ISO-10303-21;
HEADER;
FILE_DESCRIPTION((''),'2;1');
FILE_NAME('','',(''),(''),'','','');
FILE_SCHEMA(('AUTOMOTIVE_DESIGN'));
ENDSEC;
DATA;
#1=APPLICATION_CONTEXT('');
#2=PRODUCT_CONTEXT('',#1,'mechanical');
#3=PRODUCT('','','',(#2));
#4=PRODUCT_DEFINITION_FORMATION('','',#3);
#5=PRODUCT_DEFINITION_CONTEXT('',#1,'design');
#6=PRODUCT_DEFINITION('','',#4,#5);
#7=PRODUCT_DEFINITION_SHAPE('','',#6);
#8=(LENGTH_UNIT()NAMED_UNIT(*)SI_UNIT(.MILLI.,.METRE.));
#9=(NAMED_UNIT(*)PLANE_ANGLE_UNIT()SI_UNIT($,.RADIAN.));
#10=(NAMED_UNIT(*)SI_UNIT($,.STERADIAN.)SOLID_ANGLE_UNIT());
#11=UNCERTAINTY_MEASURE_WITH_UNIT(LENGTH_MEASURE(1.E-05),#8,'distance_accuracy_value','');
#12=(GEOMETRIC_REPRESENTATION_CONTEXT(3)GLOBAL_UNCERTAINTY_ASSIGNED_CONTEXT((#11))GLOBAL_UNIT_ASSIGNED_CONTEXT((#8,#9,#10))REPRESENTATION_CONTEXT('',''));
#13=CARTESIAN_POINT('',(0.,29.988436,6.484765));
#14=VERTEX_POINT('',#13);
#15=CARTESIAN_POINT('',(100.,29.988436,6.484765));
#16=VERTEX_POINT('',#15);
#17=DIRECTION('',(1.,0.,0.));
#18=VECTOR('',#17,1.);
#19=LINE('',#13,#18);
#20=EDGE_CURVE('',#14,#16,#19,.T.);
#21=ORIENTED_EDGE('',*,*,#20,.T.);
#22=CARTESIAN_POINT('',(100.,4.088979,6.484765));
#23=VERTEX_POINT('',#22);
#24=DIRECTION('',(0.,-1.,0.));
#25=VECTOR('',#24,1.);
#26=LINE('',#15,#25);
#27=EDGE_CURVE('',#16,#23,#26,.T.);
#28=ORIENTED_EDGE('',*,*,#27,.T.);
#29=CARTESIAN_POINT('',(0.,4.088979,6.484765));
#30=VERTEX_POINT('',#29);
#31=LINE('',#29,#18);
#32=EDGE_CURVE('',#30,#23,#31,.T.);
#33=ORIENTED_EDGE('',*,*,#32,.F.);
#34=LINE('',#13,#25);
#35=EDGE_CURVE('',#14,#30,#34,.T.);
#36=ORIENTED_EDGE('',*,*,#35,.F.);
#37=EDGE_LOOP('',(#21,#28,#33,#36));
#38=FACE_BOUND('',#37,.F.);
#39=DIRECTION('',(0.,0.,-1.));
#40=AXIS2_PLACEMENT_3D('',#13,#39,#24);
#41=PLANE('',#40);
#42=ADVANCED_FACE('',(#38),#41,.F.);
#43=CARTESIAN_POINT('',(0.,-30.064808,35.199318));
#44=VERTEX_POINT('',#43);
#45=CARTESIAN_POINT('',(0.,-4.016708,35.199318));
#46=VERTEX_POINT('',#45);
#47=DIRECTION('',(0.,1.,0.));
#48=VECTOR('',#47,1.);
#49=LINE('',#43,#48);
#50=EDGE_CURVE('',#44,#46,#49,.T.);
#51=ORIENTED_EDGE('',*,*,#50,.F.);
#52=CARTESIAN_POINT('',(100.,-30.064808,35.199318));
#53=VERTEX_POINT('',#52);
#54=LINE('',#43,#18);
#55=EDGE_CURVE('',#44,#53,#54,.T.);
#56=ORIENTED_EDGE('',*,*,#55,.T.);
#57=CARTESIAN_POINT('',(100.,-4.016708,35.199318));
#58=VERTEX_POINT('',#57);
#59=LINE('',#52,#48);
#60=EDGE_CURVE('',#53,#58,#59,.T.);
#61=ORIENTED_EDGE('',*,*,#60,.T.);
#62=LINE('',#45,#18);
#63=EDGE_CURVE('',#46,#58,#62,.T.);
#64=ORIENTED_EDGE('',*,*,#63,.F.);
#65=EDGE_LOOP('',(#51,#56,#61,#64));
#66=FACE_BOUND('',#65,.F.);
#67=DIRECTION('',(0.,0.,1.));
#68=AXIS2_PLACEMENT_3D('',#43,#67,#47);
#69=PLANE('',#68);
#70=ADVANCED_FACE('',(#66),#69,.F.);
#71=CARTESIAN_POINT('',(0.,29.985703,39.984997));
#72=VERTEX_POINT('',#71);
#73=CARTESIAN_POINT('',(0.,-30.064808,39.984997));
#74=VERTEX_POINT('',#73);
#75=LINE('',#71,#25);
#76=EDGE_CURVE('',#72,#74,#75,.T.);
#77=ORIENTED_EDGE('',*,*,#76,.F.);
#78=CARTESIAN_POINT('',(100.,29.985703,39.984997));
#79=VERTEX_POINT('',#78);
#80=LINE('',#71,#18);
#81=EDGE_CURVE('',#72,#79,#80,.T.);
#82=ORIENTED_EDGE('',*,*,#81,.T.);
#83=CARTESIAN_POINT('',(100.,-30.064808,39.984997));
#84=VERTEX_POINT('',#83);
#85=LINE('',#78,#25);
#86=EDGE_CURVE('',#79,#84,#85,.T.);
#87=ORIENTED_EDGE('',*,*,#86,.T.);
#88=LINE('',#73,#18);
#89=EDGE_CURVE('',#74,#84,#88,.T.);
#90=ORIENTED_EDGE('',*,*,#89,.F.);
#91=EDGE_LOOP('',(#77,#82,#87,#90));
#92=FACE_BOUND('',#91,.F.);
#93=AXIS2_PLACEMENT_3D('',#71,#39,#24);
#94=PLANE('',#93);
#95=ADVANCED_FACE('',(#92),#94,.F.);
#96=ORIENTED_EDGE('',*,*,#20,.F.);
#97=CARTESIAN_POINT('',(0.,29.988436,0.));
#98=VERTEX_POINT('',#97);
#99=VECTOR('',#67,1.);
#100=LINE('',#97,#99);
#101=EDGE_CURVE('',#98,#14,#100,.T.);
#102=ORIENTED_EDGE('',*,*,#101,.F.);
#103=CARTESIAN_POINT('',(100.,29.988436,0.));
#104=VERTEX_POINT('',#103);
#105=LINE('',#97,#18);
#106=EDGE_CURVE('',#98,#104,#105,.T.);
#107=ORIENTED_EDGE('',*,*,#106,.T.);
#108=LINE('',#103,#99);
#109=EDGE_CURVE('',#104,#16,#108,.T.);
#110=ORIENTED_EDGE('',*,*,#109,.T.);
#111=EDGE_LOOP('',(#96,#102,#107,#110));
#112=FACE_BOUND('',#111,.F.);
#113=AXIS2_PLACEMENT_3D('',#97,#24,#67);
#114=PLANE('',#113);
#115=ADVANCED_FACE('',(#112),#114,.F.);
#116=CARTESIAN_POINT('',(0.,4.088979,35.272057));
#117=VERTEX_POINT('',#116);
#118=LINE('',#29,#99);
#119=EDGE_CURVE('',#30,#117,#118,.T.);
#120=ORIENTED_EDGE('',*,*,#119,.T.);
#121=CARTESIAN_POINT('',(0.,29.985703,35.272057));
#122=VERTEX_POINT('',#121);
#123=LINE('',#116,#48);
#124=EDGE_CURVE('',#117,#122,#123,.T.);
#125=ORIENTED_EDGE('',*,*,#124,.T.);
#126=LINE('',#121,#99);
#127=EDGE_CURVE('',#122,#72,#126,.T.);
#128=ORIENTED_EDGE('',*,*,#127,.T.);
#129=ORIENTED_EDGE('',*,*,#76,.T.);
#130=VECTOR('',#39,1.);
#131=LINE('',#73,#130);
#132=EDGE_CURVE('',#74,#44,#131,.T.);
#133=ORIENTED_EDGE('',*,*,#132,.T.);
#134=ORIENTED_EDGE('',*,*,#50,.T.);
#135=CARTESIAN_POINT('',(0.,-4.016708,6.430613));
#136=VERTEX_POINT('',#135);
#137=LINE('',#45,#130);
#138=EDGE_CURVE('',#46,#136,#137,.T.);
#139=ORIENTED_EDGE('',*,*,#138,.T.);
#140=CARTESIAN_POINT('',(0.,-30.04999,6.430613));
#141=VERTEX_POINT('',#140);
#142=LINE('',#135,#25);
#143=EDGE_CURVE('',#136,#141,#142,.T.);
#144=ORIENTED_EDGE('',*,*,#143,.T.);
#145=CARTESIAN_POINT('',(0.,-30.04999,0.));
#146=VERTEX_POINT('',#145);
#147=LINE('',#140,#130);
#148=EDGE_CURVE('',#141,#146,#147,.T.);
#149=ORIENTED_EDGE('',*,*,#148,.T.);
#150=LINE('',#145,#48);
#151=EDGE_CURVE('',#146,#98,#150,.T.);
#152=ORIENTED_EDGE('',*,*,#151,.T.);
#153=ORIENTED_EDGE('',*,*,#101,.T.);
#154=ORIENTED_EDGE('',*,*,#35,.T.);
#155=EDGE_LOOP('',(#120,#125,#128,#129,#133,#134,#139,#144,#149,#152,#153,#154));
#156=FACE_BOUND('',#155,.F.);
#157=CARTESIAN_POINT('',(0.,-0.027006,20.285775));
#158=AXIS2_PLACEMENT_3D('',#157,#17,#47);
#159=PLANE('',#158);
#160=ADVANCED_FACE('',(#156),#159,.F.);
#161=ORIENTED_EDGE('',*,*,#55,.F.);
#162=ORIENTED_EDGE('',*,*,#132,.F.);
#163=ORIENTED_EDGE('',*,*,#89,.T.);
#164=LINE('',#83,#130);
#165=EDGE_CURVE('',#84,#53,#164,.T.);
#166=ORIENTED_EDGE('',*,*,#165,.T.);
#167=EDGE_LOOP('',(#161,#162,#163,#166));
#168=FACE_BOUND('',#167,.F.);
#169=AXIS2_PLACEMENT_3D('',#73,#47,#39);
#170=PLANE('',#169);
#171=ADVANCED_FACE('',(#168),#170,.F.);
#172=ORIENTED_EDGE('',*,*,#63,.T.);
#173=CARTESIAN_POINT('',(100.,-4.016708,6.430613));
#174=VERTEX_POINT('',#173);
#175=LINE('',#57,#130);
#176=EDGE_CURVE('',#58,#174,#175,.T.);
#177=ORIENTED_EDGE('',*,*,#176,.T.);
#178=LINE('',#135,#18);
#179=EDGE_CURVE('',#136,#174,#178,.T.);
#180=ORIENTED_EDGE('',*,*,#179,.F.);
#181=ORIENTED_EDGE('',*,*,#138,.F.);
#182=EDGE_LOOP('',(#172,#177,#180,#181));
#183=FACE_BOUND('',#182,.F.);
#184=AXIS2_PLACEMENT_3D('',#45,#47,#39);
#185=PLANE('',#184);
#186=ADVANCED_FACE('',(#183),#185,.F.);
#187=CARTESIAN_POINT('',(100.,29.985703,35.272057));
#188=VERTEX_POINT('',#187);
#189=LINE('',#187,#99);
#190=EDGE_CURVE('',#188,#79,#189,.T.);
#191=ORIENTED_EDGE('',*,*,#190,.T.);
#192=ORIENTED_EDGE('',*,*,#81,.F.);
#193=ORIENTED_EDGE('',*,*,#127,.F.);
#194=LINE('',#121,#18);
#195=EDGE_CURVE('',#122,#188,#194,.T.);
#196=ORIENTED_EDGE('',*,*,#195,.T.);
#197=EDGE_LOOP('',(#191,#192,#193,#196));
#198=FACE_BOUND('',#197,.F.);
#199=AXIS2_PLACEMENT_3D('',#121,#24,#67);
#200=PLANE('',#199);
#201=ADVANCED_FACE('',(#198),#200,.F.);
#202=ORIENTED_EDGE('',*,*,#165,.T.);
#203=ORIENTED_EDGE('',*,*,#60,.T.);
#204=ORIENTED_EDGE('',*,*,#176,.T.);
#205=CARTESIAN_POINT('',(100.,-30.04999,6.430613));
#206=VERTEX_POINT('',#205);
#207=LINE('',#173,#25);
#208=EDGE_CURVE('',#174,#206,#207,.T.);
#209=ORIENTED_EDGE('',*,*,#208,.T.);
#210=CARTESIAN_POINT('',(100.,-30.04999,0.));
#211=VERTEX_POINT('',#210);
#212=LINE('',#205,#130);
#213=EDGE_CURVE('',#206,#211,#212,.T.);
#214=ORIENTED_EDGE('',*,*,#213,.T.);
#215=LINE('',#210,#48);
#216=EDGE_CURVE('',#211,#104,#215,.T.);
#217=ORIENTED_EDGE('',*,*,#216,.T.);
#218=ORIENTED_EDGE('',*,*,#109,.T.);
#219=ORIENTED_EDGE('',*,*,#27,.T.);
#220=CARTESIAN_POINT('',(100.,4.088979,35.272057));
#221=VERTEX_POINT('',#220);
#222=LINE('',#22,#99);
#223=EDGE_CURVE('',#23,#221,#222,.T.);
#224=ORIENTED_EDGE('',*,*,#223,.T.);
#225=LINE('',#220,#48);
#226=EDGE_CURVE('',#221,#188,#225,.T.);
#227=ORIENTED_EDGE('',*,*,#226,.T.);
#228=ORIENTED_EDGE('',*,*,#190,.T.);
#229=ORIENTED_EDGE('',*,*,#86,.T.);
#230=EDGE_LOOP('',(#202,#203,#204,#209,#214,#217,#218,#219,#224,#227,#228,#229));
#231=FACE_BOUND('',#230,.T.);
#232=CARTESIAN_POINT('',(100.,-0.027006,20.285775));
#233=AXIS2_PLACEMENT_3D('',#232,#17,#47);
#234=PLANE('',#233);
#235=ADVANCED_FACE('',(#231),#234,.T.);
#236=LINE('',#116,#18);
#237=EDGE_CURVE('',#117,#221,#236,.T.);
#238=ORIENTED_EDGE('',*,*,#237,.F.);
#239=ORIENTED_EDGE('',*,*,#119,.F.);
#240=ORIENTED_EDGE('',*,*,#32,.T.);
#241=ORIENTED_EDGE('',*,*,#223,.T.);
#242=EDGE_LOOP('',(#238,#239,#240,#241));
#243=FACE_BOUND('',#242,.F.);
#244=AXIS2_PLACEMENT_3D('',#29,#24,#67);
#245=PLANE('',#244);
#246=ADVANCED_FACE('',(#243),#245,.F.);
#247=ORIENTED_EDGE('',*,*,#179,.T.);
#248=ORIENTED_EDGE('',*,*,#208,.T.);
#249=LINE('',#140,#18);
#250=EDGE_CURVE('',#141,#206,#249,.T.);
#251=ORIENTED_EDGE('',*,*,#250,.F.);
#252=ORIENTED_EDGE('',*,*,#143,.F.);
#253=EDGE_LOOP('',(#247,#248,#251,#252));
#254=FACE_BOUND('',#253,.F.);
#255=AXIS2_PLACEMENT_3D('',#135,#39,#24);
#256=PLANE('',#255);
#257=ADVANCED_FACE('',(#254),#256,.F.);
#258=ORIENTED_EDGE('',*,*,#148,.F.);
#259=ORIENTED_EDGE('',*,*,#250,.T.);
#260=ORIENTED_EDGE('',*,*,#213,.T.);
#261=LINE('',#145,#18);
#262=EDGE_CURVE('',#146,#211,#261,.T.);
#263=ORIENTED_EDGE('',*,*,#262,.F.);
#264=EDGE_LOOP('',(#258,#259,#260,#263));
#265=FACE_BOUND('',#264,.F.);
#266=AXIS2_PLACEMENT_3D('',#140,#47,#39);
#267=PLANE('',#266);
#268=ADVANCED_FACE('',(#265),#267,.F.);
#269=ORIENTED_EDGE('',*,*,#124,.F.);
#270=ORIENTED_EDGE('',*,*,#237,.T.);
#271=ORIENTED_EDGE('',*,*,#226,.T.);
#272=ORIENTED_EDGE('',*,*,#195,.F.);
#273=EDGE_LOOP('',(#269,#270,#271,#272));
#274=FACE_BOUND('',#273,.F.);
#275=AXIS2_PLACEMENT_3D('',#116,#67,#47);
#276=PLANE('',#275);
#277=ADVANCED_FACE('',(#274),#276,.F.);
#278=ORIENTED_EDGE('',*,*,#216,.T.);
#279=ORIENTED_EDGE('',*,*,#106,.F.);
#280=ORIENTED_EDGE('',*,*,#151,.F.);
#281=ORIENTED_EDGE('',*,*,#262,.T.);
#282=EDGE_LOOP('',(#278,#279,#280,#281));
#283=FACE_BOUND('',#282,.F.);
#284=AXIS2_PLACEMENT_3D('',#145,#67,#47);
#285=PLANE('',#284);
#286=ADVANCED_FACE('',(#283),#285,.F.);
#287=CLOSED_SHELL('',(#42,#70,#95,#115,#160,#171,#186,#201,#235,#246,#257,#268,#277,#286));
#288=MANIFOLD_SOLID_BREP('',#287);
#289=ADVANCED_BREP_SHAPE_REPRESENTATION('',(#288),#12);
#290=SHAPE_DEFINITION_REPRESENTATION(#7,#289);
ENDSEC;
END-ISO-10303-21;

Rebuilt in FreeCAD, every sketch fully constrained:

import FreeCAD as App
import Part
import Sketcher
from FreeCAD import Vector

doc = App.newDocument("Part")
body = doc.addObject("PartDesign::Body", "Body")

# Sketch on YZ plane
sketch1 = doc.addObject("Sketcher::SketchObject", "Sketch")
body.addObject(sketch1)
sketch1.AttachmentSupport = (doc.YZ_Plane, [""])
sketch1.MapMode = "FlatFace"
sketch1.addGeometry([
    Part.LineSegment(Vector(-30.04999, 0, 0), Vector(29.988436, 0, 0)),  # 0
    Part.LineSegment(Vector(29.988436, 0, 0), Vector(29.988436, 6.484765, 0)),  # 1
    Part.LineSegment(Vector(29.988436, 6.484765, 0), Vector(4.088979, 6.484765, 0)),  # 2
    Part.LineSegment(Vector(4.088979, 6.484765, 0), Vector(4.088979, 35.272057, 0)),  # 3
    Part.LineSegment(Vector(4.088979, 35.272057, 0), Vector(29.985703, 35.272057, 0)),  # 4
    Part.LineSegment(Vector(29.985703, 35.272057, 0), Vector(29.985703, 39.984997, 0)),  # 5
    Part.LineSegment(Vector(29.985703, 39.984997, 0), Vector(-30.064808, 39.984997, 0)),  # 6
    Part.LineSegment(Vector(-30.064808, 39.984997, 0), Vector(-30.064808, 35.199318, 0)),  # 7
    Part.LineSegment(Vector(-30.064808, 35.199318, 0), Vector(-4.016708, 35.199318, 0)),  # 8
    Part.LineSegment(Vector(-4.016708, 35.199318, 0), Vector(-4.016708, 6.430613, 0)),  # 9
    Part.LineSegment(Vector(-4.016708, 6.430613, 0), Vector(-30.04999, 6.430613, 0)),  # 10
    Part.LineSegment(Vector(-30.04999, 6.430613, 0), Vector(-30.04999, 0, 0)),  # 11
], False)
sketch1.addConstraint([
    Sketcher.Constraint("Coincident", 0, 2, 1, 1),
    Sketcher.Constraint("Coincident", 1, 2, 2, 1),
    Sketcher.Constraint("Coincident", 2, 2, 3, 1),
    Sketcher.Constraint("Coincident", 3, 2, 4, 1),
    Sketcher.Constraint("Coincident", 4, 2, 5, 1),
    Sketcher.Constraint("Coincident", 5, 2, 6, 1),
    Sketcher.Constraint("Coincident", 6, 2, 7, 1),
    Sketcher.Constraint("Coincident", 7, 2, 8, 1),
    Sketcher.Constraint("Coincident", 8, 2, 9, 1),
    Sketcher.Constraint("Coincident", 9, 2, 10, 1),
    Sketcher.Constraint("Coincident", 10, 2, 11, 1),
    Sketcher.Constraint("Coincident", 11, 2, 0, 1),
    Sketcher.Constraint("Horizontal", 0),
    Sketcher.Constraint("Vertical", 1),
    Sketcher.Constraint("Horizontal", 2),
    Sketcher.Constraint("Vertical", 3),
    Sketcher.Constraint("Horizontal", 4),
    Sketcher.Constraint("Vertical", 5),
    Sketcher.Constraint("Horizontal", 6),
    Sketcher.Constraint("Vertical", 7),
    Sketcher.Constraint("Horizontal", 8),
    Sketcher.Constraint("Vertical", 9),
    Sketcher.Constraint("Horizontal", 10),
    Sketcher.Constraint("Vertical", 11),
    Sketcher.Constraint("PointOnObject", 0, 2, -1),
    Sketcher.Constraint("DistanceX", 8, 1, 8, 2, 26.0481),
    Sketcher.Constraint("DistanceX", 6, 2, 6, 1, 60.050511),
    Sketcher.Constraint("DistanceX", 10, 2, 10, 1, 26.033282),
    Sketcher.Constraint("DistanceY", 3, 1, 3, 2, 28.787292),
    Sketcher.Constraint("DistanceY", 5, 1, 5, 2, 4.71294),
    Sketcher.Constraint("DistanceY", 7, 2, 7, 1, 4.785679),
    Sketcher.Constraint("DistanceX", 0, 1, 0, 2, 60.038426),
    Sketcher.Constraint("DistanceX", 2, 2, 2, 1, 25.899457),
    Sketcher.Constraint("DistanceY", 1, 1, 1, 2, 6.484765),
    Sketcher.Constraint("DistanceY", 9, 2, 9, 1, 28.768705),
    Sketcher.Constraint("DistanceX", -1, 1, 2, 2, 4.088979),
])
pad1 = doc.addObject("PartDesign::Pad", "Pad")
body.addObject(pad1)
pad1.Profile = sketch1
pad1.Length = 100

doc.recompute()
